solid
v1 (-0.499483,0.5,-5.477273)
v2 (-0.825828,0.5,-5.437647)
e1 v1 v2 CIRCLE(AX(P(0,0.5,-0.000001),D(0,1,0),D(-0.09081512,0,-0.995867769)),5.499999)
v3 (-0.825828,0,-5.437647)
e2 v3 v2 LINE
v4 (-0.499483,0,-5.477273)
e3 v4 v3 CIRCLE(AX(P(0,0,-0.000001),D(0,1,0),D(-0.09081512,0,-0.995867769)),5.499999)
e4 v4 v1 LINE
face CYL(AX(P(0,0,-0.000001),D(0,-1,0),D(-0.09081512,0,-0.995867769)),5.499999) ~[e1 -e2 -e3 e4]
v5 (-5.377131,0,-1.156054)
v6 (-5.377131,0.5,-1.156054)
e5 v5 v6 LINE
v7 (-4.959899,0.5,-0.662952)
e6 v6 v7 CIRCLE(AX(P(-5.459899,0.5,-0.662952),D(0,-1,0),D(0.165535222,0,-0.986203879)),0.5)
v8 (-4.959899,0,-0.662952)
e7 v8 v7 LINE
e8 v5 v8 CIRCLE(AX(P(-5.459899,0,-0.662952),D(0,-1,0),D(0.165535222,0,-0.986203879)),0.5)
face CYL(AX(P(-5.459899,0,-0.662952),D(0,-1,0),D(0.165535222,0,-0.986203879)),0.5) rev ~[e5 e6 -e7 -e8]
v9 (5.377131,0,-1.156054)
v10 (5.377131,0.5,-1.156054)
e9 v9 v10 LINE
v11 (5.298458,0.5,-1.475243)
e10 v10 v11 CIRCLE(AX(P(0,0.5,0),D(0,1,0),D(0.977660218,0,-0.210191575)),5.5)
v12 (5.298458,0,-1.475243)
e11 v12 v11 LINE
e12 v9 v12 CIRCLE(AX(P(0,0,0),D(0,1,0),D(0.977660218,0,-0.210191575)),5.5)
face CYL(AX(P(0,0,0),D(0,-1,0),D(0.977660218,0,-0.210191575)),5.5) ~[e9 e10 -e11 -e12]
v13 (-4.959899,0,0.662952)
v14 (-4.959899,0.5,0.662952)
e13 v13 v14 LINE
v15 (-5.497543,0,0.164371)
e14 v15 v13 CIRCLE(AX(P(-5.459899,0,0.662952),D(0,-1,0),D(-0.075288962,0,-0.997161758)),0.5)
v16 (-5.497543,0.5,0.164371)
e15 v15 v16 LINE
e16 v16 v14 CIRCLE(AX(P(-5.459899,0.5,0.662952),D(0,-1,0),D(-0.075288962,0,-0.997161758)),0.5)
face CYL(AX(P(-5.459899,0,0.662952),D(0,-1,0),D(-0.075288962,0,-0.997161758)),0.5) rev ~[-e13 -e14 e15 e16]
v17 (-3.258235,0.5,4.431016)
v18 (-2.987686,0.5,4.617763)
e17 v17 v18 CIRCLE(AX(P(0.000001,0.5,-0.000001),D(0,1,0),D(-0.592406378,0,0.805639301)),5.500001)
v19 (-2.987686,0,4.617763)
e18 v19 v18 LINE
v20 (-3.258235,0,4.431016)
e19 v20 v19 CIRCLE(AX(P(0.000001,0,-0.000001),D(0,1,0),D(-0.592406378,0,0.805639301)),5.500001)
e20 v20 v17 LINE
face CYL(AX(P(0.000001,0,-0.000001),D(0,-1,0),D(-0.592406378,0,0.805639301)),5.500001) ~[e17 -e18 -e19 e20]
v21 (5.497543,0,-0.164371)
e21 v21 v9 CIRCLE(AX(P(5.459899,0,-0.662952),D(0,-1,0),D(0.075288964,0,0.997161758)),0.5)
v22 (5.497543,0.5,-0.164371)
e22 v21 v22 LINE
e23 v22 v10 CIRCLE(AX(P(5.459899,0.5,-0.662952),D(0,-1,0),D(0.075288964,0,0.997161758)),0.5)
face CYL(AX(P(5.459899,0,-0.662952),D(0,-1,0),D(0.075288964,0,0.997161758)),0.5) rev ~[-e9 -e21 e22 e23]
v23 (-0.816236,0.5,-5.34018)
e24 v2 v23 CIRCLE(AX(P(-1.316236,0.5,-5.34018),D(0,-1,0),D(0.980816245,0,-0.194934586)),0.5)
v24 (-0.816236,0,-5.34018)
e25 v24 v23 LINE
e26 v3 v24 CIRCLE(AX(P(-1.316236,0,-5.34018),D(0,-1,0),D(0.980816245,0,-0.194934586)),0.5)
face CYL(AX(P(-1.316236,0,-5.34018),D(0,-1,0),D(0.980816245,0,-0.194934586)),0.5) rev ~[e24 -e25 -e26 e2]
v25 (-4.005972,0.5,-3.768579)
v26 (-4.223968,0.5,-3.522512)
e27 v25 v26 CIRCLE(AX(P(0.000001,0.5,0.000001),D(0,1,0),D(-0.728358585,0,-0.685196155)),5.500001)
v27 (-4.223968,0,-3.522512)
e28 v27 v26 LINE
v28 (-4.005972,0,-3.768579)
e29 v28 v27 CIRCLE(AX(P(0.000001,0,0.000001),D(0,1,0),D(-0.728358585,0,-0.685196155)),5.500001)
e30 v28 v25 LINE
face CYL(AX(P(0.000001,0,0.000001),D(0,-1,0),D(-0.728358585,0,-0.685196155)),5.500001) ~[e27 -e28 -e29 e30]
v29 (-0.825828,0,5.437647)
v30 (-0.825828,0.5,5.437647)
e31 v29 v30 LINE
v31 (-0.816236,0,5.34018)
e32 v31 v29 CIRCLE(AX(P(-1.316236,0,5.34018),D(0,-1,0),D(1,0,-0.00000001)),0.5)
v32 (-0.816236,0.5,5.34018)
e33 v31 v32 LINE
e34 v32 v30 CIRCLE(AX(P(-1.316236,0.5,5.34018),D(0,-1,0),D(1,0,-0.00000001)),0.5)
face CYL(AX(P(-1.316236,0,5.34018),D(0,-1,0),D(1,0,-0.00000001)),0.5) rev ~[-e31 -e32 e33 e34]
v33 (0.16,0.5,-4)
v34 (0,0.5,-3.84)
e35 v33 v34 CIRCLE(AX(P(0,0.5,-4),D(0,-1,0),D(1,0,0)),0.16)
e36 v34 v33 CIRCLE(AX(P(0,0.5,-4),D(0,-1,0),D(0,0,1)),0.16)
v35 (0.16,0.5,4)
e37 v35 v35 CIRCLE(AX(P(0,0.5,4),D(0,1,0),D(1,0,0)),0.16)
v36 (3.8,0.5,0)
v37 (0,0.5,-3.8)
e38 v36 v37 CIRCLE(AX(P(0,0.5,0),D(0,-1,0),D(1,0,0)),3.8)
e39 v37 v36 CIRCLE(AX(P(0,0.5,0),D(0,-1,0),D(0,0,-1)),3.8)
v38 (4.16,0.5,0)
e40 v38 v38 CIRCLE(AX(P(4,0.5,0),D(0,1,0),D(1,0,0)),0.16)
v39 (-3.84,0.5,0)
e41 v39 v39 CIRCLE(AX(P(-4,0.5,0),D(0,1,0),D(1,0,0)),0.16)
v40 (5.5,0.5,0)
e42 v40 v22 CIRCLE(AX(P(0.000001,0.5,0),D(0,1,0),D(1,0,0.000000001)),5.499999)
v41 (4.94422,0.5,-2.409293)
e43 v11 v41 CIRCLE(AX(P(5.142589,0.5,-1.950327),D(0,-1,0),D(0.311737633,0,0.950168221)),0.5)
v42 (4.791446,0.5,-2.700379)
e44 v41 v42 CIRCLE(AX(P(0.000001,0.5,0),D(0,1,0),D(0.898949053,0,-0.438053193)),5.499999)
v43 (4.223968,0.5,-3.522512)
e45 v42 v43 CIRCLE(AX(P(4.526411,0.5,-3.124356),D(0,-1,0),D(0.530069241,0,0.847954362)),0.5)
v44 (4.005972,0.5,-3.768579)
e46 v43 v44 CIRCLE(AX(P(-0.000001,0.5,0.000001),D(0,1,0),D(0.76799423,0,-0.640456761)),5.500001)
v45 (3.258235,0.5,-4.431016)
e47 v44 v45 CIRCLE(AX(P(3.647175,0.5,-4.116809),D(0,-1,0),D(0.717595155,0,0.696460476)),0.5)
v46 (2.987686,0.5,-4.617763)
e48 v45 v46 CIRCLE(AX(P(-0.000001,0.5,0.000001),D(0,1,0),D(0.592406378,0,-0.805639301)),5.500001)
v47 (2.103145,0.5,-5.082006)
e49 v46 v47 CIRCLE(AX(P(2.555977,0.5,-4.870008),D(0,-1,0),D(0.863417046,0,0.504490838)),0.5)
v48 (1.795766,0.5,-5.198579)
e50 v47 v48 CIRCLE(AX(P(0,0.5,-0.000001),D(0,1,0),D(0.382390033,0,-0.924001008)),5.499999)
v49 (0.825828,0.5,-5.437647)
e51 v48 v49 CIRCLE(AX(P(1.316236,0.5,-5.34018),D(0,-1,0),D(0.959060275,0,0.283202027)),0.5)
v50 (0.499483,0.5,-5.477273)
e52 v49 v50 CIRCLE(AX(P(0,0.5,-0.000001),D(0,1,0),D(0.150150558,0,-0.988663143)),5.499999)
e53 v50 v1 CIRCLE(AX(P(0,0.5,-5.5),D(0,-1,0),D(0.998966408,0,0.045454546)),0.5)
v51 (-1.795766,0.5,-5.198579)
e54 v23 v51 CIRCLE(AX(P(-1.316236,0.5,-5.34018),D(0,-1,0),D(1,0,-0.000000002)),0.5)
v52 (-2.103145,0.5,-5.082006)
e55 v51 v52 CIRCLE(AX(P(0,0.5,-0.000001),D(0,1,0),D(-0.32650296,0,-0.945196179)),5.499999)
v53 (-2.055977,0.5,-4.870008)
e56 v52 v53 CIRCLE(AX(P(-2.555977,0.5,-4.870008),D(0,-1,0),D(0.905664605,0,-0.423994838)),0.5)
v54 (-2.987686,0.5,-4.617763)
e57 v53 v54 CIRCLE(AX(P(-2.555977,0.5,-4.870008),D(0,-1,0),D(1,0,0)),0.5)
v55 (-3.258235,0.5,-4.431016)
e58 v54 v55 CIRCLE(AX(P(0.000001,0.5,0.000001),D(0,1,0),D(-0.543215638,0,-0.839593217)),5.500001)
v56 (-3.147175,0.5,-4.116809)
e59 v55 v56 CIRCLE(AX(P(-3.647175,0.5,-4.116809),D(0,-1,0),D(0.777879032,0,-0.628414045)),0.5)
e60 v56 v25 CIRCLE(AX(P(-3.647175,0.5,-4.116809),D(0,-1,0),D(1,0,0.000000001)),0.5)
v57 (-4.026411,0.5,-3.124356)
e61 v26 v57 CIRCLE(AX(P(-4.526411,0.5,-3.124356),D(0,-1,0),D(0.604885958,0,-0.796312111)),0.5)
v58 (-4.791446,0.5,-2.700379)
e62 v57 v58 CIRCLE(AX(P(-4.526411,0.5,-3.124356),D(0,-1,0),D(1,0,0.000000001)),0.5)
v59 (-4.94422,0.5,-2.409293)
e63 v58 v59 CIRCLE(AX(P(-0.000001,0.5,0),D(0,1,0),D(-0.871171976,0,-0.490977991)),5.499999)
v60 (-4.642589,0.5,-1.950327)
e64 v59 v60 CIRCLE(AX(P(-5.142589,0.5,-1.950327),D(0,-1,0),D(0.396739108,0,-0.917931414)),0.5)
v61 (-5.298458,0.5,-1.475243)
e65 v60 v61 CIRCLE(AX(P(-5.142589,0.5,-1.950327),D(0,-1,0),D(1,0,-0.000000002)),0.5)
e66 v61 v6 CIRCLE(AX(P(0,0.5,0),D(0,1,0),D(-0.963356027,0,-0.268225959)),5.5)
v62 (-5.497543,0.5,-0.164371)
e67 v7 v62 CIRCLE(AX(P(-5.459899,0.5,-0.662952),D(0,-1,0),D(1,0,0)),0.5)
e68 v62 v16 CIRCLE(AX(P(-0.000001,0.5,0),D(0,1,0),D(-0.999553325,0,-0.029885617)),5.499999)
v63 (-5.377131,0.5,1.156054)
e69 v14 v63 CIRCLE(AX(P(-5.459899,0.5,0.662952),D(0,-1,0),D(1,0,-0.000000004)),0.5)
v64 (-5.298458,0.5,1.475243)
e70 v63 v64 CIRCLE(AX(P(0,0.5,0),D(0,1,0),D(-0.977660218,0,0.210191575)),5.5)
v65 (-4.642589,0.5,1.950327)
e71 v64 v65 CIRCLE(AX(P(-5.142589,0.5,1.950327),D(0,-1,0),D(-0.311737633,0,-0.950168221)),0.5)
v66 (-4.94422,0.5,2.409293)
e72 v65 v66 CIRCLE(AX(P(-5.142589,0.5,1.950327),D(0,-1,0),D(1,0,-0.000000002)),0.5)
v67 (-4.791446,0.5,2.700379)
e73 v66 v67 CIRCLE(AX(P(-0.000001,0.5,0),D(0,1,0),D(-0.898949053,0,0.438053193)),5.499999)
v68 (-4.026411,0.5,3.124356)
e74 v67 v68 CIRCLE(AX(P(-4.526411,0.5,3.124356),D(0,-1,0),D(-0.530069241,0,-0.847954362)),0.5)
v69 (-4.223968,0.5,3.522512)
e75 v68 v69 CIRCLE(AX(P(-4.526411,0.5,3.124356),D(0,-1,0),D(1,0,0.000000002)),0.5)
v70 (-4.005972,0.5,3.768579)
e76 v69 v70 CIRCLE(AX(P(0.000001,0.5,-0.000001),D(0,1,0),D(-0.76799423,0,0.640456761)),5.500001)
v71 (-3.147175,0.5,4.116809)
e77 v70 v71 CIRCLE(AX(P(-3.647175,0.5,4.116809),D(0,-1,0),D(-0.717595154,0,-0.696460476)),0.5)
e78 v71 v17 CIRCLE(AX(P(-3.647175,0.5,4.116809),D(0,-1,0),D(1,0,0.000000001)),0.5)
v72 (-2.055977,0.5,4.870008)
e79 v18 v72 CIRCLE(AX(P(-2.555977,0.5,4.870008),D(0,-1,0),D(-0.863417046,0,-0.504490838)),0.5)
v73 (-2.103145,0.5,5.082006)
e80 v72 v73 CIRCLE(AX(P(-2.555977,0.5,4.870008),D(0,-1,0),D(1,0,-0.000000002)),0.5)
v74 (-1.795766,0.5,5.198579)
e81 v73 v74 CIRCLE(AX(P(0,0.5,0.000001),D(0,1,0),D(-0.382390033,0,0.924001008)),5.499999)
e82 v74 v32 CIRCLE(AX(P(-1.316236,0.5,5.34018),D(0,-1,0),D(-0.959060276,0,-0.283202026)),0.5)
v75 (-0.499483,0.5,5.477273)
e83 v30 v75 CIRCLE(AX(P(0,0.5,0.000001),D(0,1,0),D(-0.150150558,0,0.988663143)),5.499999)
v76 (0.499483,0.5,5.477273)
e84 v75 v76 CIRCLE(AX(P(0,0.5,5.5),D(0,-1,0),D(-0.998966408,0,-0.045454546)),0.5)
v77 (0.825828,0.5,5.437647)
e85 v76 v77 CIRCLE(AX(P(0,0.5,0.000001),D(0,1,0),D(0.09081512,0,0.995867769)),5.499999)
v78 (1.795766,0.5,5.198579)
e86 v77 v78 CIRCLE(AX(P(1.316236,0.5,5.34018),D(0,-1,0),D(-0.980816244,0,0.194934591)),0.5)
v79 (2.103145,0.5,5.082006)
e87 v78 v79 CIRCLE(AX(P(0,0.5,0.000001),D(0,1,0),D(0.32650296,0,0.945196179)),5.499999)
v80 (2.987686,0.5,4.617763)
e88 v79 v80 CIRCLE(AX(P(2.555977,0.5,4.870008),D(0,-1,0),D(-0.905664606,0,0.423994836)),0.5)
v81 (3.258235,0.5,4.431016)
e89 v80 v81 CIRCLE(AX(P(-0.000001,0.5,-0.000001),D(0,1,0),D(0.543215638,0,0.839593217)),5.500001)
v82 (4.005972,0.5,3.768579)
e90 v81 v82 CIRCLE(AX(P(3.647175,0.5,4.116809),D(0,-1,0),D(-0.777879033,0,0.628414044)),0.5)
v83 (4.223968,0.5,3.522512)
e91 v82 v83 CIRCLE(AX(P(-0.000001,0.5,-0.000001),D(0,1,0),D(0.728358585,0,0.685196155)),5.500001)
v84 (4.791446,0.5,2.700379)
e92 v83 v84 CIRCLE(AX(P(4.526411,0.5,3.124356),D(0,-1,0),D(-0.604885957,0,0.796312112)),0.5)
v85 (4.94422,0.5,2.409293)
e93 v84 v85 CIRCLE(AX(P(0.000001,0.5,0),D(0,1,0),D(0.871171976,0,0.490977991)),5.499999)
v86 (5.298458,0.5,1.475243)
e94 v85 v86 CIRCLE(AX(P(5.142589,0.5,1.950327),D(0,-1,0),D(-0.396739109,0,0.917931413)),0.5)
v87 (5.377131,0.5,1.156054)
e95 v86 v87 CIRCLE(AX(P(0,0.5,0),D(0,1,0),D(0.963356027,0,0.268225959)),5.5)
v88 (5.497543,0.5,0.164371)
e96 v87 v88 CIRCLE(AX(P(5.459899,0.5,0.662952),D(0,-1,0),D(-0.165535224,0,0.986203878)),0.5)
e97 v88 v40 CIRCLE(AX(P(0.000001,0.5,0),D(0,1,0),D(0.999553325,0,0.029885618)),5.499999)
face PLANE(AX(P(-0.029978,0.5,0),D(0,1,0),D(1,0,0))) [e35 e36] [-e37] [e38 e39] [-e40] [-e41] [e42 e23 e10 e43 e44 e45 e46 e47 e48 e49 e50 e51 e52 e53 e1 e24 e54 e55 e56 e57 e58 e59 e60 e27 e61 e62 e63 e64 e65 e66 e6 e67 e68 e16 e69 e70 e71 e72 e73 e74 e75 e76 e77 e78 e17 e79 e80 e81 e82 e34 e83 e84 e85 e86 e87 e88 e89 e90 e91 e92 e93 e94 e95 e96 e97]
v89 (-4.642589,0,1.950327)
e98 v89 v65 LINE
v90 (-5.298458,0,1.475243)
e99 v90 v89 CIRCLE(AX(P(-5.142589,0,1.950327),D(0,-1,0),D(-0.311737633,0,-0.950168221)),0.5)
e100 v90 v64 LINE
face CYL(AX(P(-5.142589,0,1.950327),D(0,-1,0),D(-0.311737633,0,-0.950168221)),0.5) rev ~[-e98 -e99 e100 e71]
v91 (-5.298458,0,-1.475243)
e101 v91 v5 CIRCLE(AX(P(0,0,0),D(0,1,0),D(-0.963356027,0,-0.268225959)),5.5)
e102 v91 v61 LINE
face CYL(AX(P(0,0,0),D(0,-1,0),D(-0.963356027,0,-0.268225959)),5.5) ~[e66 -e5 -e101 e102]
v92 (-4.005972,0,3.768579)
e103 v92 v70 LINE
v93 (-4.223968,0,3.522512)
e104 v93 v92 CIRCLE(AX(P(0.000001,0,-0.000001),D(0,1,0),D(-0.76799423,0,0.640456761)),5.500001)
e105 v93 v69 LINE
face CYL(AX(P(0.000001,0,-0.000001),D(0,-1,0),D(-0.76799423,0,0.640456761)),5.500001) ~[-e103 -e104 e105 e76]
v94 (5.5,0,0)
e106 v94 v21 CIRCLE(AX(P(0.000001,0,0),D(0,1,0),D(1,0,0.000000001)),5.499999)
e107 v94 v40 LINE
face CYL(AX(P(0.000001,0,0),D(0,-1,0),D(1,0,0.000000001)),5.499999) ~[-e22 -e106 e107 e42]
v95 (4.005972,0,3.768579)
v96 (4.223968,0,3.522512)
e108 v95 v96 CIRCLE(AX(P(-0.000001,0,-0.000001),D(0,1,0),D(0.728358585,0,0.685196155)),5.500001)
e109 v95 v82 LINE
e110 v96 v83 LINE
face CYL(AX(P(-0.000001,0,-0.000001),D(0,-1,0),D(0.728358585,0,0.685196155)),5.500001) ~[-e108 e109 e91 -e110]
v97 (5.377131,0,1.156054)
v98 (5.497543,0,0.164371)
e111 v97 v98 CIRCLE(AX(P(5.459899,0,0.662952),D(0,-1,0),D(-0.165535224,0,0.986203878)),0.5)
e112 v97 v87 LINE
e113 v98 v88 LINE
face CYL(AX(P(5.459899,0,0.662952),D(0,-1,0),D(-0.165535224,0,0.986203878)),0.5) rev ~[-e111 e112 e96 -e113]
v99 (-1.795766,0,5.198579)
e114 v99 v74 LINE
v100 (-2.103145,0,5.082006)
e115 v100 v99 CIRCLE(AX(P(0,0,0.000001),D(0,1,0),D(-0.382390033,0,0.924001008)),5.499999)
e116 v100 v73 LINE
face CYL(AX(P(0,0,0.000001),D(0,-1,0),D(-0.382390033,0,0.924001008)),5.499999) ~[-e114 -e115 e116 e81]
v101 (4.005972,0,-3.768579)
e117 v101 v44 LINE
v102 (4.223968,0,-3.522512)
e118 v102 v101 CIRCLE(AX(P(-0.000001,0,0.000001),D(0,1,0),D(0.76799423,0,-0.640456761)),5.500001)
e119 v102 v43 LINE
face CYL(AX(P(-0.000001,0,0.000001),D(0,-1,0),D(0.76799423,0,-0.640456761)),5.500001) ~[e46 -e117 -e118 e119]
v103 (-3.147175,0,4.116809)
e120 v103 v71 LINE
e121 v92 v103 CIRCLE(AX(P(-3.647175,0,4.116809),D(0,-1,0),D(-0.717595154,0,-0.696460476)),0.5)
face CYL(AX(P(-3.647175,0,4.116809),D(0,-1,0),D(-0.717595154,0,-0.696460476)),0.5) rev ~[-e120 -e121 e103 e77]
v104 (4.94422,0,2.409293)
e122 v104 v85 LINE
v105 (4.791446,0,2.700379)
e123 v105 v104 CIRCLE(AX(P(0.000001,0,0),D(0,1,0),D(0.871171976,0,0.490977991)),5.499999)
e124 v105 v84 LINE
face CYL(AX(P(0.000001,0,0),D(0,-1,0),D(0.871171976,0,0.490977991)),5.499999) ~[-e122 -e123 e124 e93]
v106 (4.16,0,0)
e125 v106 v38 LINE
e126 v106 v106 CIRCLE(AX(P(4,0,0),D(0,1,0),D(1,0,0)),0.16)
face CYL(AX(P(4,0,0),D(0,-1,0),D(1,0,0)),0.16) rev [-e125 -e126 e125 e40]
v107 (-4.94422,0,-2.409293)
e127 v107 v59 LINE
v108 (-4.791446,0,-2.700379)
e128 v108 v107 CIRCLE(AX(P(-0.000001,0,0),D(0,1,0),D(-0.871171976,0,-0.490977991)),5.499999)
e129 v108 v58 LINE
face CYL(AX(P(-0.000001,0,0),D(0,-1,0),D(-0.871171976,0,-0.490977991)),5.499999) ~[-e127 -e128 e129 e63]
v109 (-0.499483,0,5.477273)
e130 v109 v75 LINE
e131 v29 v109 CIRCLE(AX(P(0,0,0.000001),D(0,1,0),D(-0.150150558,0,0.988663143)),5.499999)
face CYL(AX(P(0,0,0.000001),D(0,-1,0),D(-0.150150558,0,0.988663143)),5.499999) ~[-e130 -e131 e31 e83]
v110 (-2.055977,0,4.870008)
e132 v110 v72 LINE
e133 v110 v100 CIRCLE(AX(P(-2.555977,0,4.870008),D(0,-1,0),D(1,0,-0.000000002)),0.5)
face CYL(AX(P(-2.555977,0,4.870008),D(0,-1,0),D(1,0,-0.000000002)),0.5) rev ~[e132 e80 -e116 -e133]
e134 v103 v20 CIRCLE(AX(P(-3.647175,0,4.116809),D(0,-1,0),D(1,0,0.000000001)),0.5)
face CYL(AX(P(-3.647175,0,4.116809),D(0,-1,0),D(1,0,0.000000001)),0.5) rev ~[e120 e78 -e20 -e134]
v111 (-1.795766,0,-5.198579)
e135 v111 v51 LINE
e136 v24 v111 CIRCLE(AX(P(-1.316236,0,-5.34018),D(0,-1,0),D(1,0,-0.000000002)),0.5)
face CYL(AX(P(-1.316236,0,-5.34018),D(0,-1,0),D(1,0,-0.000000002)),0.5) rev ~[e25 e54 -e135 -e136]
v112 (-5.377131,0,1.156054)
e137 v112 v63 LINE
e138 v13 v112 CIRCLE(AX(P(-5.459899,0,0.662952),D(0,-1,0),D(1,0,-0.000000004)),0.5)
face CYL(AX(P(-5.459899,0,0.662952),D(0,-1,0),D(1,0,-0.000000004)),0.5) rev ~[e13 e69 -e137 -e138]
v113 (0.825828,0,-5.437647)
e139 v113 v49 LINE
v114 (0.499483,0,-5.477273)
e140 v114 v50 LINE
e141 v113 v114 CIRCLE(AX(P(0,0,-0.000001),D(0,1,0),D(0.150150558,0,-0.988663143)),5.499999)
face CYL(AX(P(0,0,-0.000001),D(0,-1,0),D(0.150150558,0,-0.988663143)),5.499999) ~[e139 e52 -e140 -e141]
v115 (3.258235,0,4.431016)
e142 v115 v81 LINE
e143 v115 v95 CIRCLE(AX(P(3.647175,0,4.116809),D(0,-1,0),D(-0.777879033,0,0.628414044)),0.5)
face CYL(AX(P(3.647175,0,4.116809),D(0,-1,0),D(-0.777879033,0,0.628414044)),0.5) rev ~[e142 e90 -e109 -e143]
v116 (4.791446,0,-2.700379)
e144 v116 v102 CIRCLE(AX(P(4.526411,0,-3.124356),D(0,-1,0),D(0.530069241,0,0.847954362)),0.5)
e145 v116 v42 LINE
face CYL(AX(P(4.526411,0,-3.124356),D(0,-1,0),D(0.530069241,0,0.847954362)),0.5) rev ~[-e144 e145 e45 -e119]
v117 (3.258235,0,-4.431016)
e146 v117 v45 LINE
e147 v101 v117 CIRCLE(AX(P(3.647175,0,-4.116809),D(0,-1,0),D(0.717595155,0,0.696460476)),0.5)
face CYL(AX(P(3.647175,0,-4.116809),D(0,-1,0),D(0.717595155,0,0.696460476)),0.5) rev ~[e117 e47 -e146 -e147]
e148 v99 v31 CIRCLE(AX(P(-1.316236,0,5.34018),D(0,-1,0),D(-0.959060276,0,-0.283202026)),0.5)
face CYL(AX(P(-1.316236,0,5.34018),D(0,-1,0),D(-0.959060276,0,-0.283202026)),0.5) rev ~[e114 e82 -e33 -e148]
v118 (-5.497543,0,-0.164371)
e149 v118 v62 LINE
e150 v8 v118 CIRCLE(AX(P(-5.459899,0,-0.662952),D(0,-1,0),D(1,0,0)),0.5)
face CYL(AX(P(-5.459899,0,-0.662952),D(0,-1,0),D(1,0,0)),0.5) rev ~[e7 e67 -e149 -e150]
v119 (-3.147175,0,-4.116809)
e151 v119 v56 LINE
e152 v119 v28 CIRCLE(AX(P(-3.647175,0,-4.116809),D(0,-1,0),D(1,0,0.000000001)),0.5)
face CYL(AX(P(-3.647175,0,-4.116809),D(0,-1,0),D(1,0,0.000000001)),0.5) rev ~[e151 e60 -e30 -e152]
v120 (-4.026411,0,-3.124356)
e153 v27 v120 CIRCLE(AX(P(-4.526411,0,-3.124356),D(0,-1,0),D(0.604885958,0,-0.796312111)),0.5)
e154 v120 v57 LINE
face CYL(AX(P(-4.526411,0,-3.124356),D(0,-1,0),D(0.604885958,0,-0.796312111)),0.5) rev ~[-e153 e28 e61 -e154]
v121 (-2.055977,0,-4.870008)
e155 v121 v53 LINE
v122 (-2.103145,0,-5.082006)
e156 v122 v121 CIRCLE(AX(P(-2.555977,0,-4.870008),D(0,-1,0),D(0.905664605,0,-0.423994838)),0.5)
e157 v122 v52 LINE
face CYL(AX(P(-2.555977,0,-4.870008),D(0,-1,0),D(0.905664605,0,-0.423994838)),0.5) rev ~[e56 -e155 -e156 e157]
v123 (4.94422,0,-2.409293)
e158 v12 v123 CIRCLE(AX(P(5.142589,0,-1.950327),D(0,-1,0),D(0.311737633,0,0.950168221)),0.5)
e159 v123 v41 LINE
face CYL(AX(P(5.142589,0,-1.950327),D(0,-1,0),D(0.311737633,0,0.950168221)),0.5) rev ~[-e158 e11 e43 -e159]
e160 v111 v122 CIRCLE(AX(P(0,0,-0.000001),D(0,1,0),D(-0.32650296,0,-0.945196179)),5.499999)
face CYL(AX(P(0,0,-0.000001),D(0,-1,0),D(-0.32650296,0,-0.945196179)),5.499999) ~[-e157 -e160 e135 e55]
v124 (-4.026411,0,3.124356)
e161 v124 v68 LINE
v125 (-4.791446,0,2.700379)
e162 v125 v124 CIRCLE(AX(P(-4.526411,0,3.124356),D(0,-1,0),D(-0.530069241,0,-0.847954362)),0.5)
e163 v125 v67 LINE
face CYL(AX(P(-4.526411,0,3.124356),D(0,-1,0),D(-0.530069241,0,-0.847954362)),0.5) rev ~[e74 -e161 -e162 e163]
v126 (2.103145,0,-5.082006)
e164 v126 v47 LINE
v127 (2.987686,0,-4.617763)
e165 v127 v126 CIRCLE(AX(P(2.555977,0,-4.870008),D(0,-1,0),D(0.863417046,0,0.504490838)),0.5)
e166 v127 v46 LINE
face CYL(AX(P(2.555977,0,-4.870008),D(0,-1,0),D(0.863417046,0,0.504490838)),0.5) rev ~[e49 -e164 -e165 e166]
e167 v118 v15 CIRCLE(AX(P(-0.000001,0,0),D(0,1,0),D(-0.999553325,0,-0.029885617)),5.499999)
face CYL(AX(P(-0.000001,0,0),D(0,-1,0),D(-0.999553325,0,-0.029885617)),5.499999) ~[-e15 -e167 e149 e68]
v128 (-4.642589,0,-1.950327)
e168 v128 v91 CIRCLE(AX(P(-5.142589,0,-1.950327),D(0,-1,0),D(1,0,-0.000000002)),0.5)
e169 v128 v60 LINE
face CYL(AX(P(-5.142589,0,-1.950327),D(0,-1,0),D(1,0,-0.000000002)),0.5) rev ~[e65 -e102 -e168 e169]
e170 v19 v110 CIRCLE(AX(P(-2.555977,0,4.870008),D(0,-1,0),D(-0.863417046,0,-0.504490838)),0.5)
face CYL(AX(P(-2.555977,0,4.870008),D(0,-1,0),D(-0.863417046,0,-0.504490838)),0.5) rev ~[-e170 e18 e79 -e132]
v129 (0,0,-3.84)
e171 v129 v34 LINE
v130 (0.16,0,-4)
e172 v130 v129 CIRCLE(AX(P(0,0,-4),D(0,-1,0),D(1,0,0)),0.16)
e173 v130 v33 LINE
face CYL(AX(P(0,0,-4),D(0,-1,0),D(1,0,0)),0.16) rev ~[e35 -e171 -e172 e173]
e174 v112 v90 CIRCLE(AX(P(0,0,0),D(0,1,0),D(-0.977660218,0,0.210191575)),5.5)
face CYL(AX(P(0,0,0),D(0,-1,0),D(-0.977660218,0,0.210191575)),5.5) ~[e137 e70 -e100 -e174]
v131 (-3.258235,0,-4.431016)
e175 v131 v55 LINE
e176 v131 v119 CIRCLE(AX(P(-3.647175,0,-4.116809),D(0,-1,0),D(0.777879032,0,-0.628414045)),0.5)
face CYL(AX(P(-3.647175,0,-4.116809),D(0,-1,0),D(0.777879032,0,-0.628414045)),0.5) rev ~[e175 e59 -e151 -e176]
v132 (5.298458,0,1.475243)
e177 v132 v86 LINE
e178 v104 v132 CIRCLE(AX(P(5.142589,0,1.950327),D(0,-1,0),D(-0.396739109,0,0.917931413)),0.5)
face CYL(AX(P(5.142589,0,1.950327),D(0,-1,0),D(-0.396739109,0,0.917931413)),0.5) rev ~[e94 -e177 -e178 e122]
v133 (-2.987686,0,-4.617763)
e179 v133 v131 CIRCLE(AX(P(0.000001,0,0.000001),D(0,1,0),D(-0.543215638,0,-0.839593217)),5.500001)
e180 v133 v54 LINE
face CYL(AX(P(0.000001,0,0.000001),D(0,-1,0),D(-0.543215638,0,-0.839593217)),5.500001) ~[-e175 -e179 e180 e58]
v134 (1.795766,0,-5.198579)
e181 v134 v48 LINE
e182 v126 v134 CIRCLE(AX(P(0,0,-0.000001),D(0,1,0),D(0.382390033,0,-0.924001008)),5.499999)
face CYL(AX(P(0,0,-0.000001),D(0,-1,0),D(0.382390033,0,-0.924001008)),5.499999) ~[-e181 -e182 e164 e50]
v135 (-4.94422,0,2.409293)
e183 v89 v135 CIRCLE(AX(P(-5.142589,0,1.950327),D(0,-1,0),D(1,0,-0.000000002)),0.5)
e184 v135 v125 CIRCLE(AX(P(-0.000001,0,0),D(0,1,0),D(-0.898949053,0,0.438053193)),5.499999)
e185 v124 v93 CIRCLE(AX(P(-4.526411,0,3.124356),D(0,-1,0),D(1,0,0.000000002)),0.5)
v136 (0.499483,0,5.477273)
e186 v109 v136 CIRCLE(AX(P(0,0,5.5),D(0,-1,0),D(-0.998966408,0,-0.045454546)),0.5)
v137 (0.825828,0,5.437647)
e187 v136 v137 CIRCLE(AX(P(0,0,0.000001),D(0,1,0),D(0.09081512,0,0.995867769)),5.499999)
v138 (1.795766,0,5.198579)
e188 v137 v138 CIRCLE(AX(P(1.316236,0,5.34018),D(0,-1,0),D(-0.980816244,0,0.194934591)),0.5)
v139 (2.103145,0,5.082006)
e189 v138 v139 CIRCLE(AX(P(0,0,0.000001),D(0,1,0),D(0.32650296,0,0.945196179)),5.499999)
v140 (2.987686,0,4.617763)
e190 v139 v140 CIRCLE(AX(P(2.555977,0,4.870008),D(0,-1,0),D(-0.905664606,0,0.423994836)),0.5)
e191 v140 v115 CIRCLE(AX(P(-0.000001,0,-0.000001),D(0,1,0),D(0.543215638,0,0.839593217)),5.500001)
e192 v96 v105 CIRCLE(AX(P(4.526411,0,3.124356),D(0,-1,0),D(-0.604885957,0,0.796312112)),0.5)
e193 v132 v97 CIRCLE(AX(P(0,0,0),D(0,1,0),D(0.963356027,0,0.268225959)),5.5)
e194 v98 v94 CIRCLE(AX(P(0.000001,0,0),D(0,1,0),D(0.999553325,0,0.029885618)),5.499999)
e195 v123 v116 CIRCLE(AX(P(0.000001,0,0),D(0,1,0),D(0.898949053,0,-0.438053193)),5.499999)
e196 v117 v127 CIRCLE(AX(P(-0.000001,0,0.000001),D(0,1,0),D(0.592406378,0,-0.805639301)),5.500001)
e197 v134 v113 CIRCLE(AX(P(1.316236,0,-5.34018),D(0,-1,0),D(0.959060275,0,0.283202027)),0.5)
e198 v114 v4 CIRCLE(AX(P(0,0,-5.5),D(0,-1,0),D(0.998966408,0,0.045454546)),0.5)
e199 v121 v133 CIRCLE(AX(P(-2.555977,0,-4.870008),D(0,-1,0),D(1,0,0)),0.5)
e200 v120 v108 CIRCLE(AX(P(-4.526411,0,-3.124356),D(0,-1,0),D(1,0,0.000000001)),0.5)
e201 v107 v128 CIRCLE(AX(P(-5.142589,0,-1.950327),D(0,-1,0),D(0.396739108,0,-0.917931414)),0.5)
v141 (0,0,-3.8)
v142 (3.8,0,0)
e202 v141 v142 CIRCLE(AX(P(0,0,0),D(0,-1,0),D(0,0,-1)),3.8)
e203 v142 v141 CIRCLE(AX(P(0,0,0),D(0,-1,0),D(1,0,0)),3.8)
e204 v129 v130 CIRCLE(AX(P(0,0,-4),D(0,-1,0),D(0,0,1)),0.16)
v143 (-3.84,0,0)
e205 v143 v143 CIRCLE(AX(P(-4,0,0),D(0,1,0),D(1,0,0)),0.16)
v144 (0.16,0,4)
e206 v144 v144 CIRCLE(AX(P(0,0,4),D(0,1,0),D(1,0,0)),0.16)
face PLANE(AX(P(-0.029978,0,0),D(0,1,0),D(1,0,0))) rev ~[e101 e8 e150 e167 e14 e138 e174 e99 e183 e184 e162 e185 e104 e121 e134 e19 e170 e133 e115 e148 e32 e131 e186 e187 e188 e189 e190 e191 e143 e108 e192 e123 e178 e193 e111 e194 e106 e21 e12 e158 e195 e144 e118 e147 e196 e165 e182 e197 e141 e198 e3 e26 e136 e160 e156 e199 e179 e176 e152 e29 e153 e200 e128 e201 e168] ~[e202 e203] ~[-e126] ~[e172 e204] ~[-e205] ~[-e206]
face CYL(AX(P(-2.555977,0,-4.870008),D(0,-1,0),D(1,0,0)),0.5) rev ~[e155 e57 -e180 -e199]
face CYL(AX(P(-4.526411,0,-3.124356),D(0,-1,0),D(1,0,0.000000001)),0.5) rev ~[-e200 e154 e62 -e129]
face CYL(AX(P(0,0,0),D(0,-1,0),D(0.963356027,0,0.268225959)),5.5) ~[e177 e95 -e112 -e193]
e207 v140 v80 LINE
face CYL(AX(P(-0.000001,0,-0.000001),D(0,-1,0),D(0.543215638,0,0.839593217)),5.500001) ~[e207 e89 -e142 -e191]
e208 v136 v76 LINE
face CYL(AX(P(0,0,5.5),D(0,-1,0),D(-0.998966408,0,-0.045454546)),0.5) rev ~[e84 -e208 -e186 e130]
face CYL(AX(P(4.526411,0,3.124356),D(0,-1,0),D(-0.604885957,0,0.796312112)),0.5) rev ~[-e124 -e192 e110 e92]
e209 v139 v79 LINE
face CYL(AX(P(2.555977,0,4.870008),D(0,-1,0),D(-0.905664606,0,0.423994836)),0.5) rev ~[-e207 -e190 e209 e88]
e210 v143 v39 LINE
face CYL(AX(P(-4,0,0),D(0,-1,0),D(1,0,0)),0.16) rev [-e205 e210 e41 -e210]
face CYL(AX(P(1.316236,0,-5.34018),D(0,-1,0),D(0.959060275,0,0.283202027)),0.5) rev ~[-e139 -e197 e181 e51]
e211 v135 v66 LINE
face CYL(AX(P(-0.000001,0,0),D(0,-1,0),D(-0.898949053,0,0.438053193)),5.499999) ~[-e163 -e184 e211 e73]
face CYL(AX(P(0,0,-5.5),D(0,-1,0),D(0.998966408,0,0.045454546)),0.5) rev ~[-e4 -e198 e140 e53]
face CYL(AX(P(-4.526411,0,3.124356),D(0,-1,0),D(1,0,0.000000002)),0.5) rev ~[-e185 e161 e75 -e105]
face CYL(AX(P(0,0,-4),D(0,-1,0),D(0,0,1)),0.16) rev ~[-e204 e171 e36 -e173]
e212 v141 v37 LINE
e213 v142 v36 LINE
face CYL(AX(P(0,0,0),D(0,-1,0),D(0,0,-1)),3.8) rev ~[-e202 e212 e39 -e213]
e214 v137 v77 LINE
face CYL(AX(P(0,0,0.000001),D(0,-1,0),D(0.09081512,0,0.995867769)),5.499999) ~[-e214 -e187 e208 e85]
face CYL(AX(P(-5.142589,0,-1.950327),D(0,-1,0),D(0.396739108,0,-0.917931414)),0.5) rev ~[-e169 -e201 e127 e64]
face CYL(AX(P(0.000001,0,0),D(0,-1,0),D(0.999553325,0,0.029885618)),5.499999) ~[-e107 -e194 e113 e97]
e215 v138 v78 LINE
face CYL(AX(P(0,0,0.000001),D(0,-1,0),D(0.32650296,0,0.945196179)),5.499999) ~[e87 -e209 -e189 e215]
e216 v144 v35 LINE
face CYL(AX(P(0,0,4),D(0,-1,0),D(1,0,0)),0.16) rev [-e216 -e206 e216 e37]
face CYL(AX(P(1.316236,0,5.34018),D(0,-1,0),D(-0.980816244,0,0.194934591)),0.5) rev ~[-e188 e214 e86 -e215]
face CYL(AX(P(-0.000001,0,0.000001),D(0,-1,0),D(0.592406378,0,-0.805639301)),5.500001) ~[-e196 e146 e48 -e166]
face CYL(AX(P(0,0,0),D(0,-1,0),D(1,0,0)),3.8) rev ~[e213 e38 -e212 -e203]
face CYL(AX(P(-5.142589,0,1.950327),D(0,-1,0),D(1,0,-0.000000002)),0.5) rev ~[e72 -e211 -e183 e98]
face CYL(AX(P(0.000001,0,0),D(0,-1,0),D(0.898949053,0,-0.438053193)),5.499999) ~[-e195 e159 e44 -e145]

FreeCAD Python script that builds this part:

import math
import FreeCAD as App
import Part
import Sketcher

V = App.Vector

doc = App.newDocument("Part")
body = doc.addObject("PartDesign::Body", "Body")

# Sketch on XZ plane
sketch1 = body.newObject("Sketcher::SketchObject", "Sketch")
sketch1.AttachmentSupport = (doc.getObject("XZ_Plane"), [""])
sketch1.MapMode = "FlatFace"
sketch1.addGeometry([
    Part.ArcOfCircle(Part.Circle(V(0.000001, 0, 0), V(0, 0, 1), 5.499999), math.radians(0), math.radians(1.712575)),  # 0
    Part.ArcOfCircle(Part.Circle(V(0.000001, 0, 0), V(0, 0, 1), 5.499999), math.radians(-1.712575), math.radians(0)),  # 1
    Part.ArcOfCircle(Part.Circle(V(5.459899, -0.662952, 0), V(0, 0, 1), 0.5), math.radians(85.682174), math.radians(260.471672)),  # 2
    Part.ArcOfCircle(Part.Circle(V(0, 0, 0), V(0, 0, 1), 5.5), math.radians(-15.558728), math.radians(-12.133579)),  # 3
    Part.ArcOfCircle(Part.Circle(V(5.142589, -1.950327, 0), V(0, 0, 1), 0.5), math.radians(71.83602), math.radians(246.625518)),  # 4
    Part.ArcOfCircle(Part.Circle(V(0.000001, 0, 0), V(0, 0, 1), 5.499999), math.radians(-29.404882), math.radians(-25.979733)),  # 5
    Part.ArcOfCircle(Part.Circle(V(4.526411, -3.124356, 0), V(0, 0, 1), 0.5), math.radians(57.989867), math.radians(232.779364)),  # 6
    Part.ArcOfCircle(Part.Circle(V(-0.000001, 0.000001, 0), V(0, 0, 1), 5.500001), math.radians(-43.251036), math.radians(-39.825887)),  # 7
    Part.ArcOfCircle(Part.Circle(V(3.647175, -4.116809, 0), V(0, 0, 1), 0.5), math.radians(44.143713), math.radians(218.93321)),  # 8
    Part.ArcOfCircle(Part.Circle(V(-0.000001, 0.000001, 0), V(0, 0, 1), 5.500001), math.radians(-57.097189), math.radians(-53.672041)),  # 9
    Part.ArcOfCircle(Part.Circle(V(2.555977, -4.870008, 0), V(0, 0, 1), 0.5), math.radians(30.297559), math.radians(205.087056)),  # 10
    Part.ArcOfCircle(Part.Circle(V(0, -0.000001, 0), V(0, 0, 1), 5.499999), math.radians(-70.943344), math.radians(-67.518194)),  # 11
    Part.ArcOfCircle(Part.Circle(V(1.316236, -5.34018, 0), V(0, 0, 1), 0.5), math.radians(16.451405), math.radians(191.240903)),  # 12
    Part.ArcOfCircle(Part.Circle(V(0, -0.000001, 0), V(0, 0, 1), 5.499999), math.radians(-84.789498), math.radians(-81.364348)),  # 13
    Part.ArcOfCircle(Part.Circle(V(0, -5.5, 0), V(0, 0, 1), 0.5), math.radians(2.605251), math.radians(177.394749)),  # 14
    Part.ArcOfCircle(Part.Circle(V(0, -0.000001, 0), V(0, 0, 1), 5.499999), math.radians(-98.635652), math.radians(-95.210502)),  # 15
    Part.ArcOfCircle(Part.Circle(V(-1.316236, -5.34018, 0), V(0, 0, 1), 0.5), math.radians(-11.240902), math.radians(0.000001)),  # 16
    Part.ArcOfCircle(Part.Circle(V(-1.316236, -5.34018, 0), V(0, 0, 1), 0.5), math.radians(0), math.radians(163.548595)),  # 17
    Part.ArcOfCircle(Part.Circle(V(0, -0.000001, 0), V(0, 0, 1), 5.499999), math.radians(-112.481806), math.radians(-109.056656)),  # 18
    Part.ArcOfCircle(Part.Circle(V(-2.555977, -4.870008, 0), V(0, 0, 1), 0.5), math.radians(-25.087057), math.radians(0)),  # 19
    Part.ArcOfCircle(Part.Circle(V(-2.555977, -4.870008, 0), V(0, 0, 1), 0.5), math.radians(0), math.radians(149.702441)),  # 20
    Part.ArcOfCircle(Part.Circle(V(0.000001, 0.000001, 0), V(0, 0, 1), 5.500001), math.radians(-126.327959), math.radians(-122.902811)),  # 21
    Part.ArcOfCircle(Part.Circle(V(-3.647175, -4.116809, 0), V(0, 0, 1), 0.5), math.radians(-38.93321), math.radians(0)),  # 22
    Part.ArcOfCircle(Part.Circle(V(-3.647175, -4.116809, 0), V(0, 0, 1), 0.5), math.radians(0), math.radians(135.856287)),  # 23
    Part.ArcOfCircle(Part.Circle(V(0.000001, 0.000001, 0), V(0, 0, 1), 5.500001), math.radians(-140.174113), math.radians(-136.748964)),  # 24
    Part.ArcOfCircle(Part.Circle(V(-4.526411, -3.124356, 0), V(0, 0, 1), 0.5), math.radians(-52.779364), math.radians(0)),  # 25
    Part.ArcOfCircle(Part.Circle(V(-4.526411, -3.124356, 0), V(0, 0, 1), 0.5), math.radians(0), math.radians(122.010133)),  # 26
    Part.ArcOfCircle(Part.Circle(V(-0.000001, 0, 0), V(0, 0, 1), 5.499999), math.radians(-154.020267), math.radians(-150.595118)),  # 27
    Part.ArcOfCircle(Part.Circle(V(-5.142589, -1.950327, 0), V(0, 0, 1), 0.5), math.radians(-66.625518), math.radians(0)),  # 28
    Part.ArcOfCircle(Part.Circle(V(-5.142589, -1.950327, 0), V(0, 0, 1), 0.5), math.radians(0), math.radians(108.16398)),  # 29
    Part.ArcOfCircle(Part.Circle(V(0, 0, 0), V(0, 0, 1), 5.5), math.radians(-167.866421), math.radians(-164.441272)),  # 30
    Part.ArcOfCircle(Part.Circle(V(-5.459899, -0.662952, 0), V(0, 0, 1), 0.5), math.radians(-80.471672), math.radians(0)),  # 31
    Part.ArcOfCircle(Part.Circle(V(-5.459899, -0.662952, 0), V(0, 0, 1), 0.5), math.radians(0), math.radians(94.317826)),  # 32
    Part.ArcOfCircle(Part.Circle(V(-0.000001, 0, 0), V(0, 0, 1), 5.499999), math.radians(178.287425), math.radians(181.712575)),  # 33
    Part.ArcOfCircle(Part.Circle(V(-5.459899, 0.662952, 0), V(0, 0, 1), 0.5), math.radians(-94.317826), math.radians(0)),  # 34
    Part.ArcOfCircle(Part.Circle(V(-5.459899, 0.662952, 0), V(0, 0, 1), 0.5), math.radians(0), math.radians(80.471672)),  # 35
    Part.ArcOfCircle(Part.Circle(V(0, 0, 0), V(0, 0, 1), 5.5), math.radians(164.441272), math.radians(167.866421)),  # 36
    Part.ArcOfCircle(Part.Circle(V(-5.142589, 1.950327, 0), V(0, 0, 1), 0.5), math.radians(-108.16398), math.radians(0)),  # 37
    Part.ArcOfCircle(Part.Circle(V(-5.142589, 1.950327, 0), V(0, 0, 1), 0.5), math.radians(0), math.radians(66.625518)),  # 38
    Part.ArcOfCircle(Part.Circle(V(-0.000001, 0, 0), V(0, 0, 1), 5.499999), math.radians(150.595118), math.radians(154.020267)),  # 39
    Part.ArcOfCircle(Part.Circle(V(-4.526411, 3.124356, 0), V(0, 0, 1), 0.5), math.radians(-122.010133), math.radians(0)),  # 40
    Part.ArcOfCircle(Part.Circle(V(-4.526411, 3.124356, 0), V(0, 0, 1), 0.5), math.radians(0), math.radians(52.779364)),  # 41
    Part.ArcOfCircle(Part.Circle(V(0.000001, -0.000001, 0), V(0, 0, 1), 5.500001), math.radians(136.748964), math.radians(140.174113)),  # 42
    Part.ArcOfCircle(Part.Circle(V(-3.647175, 4.116809, 0), V(0, 0, 1), 0.5), math.radians(-135.856287), math.radians(0)),  # 43
    Part.ArcOfCircle(Part.Circle(V(-3.647175, 4.116809, 0), V(0, 0, 1), 0.5), math.radians(0), math.radians(38.93321)),  # 44
    Part.ArcOfCircle(Part.Circle(V(0.000001, -0.000001, 0), V(0, 0, 1), 5.500001), math.radians(122.902811), math.radians(126.327959)),  # 45
    Part.ArcOfCircle(Part.Circle(V(-2.555977, 4.870008, 0), V(0, 0, 1), 0.5), math.radians(-149.702441), math.radians(0)),  # 46
    Part.ArcOfCircle(Part.Circle(V(-2.555977, 4.870008, 0), V(0, 0, 1), 0.5), math.radians(0), math.radians(25.087057)),  # 47
    Part.ArcOfCircle(Part.Circle(V(0, 0.000001, 0), V(0, 0, 1), 5.499999), math.radians(109.056656), math.radians(112.481806)),  # 48
    Part.ArcOfCircle(Part.Circle(V(-1.316236, 5.34018, 0), V(0, 0, 1), 0.5), math.radians(-163.548595), math.radians(0)),  # 49
    Part.ArcOfCircle(Part.Circle(V(-1.316236, 5.34018, 0), V(0, 0, 1), 0.5), math.radians(-0.000001), math.radians(11.240902)),  # 50
    Part.ArcOfCircle(Part.Circle(V(0, 0.000001, 0), V(0, 0, 1), 5.499999), math.radians(95.210502), math.radians(98.635652)),  # 51
    Part.ArcOfCircle(Part.Circle(V(0, 5.5, 0), V(0, 0, 1), 0.5), math.radians(-177.394749), math.radians(-2.605251)),  # 52
    Part.ArcOfCircle(Part.Circle(V(0, 0.000001, 0), V(0, 0, 1), 5.499999), math.radians(81.364348), math.radians(84.789498)),  # 53
    Part.ArcOfCircle(Part.Circle(V(1.316236, 5.34018, 0), V(0, 0, 1), 0.5), math.radians(168.759097), math.radians(343.548595)),  # 54
    Part.ArcOfCircle(Part.Circle(V(0, 0.000001, 0), V(0, 0, 1), 5.499999), math.radians(67.518194), math.radians(70.943344)),  # 55
    Part.ArcOfCircle(Part.Circle(V(2.555977, 4.870008, 0), V(0, 0, 1), 0.5), math.radians(154.912944), math.radians(329.702441)),  # 56
    Part.ArcOfCircle(Part.Circle(V(-0.000001, -0.000001, 0), V(0, 0, 1), 5.500001), math.radians(53.672041), math.radians(57.097189)),  # 57
    Part.ArcOfCircle(Part.Circle(V(3.647175, 4.116809, 0), V(0, 0, 1), 0.5), math.radians(141.06679), math.radians(315.856287)),  # 58
    Part.ArcOfCircle(Part.Circle(V(-0.000001, -0.000001, 0), V(0, 0, 1), 5.500001), math.radians(39.825887), math.radians(43.251036)),  # 59
    Part.ArcOfCircle(Part.Circle(V(4.526411, 3.124356, 0), V(0, 0, 1), 0.5), math.radians(127.220636), math.radians(302.010133)),  # 60
    Part.ArcOfCircle(Part.Circle(V(0.000001, 0, 0), V(0, 0, 1), 5.499999), math.radians(25.979733), math.radians(29.404882)),  # 61
    Part.ArcOfCircle(Part.Circle(V(5.142589, 1.950327, 0), V(0, 0, 1), 0.5), math.radians(113.374482), math.radians(288.16398)),  # 62
    Part.ArcOfCircle(Part.Circle(V(0, 0, 0), V(0, 0, 1), 5.5), math.radians(12.133579), math.radians(15.558728)),  # 63
    Part.ArcOfCircle(Part.Circle(V(5.459899, 0.662952, 0), V(0, 0, 1), 0.5), math.radians(99.528328), math.radians(274.317826)),  # 64
    Part.Circle(V(-4, 0, 0), V(0, 0, 1), 0.16),  # 65
    Part.ArcOfCircle(Part.Circle(V(0, 0, 0), V(0, 0, 1), 3.8), math.radians(-90), math.radians(0)),  # 66
    Part.ArcOfCircle(Part.Circle(V(0, 0, 0), V(0, 0, 1), 3.8), math.radians(0), math.radians(270)),  # 67
    Part.Circle(V(0, 4, 0), V(0, 0, 1), 0.16),  # 68
    Part.Circle(V(4, 0, 0), V(0, 0, 1), 0.16),  # 69
    Part.ArcOfCircle(Part.Circle(V(0, -4, 0), V(0, 0, 1), 0.16), math.radians(90), math.radians(360)),  # 70
    Part.ArcOfCircle(Part.Circle(V(0, -4, 0), V(0, 0, 1), 0.16), math.radians(0), math.radians(90)),  # 71
], False)
sketch1.addConstraint([
    Sketcher.Constraint("Tangent", 0, 1, 1, 2),
    Sketcher.Constraint("Coincident", 1, 1, 2, 1),
    Sketcher.Constraint("Coincident", 2, 2, 3, 2),
    Sketcher.Constraint("Coincident", 3, 1, 4, 1),
    Sketcher.Constraint("Coincident", 4, 2, 5, 2),
    Sketcher.Constraint("Coincident", 5, 1, 6, 1),
    Sketcher.Constraint("Coincident", 6, 2, 7, 2),
    Sketcher.Constraint("Coincident", 7, 1, 8, 1),
    Sketcher.Constraint("Coincident", 8, 2, 9, 2),
    Sketcher.Constraint("Coincident", 9, 1, 10, 1),
    Sketcher.Constraint("Coincident", 10, 2, 11, 2),
    Sketcher.Constraint("Coincident", 11, 1, 12, 1),
    Sketcher.Constraint("Coincident", 12, 2, 13, 2),
    Sketcher.Constraint("Coincident", 13, 1, 14, 1),
    Sketcher.Constraint("Coincident", 14, 2, 15, 2),
    Sketcher.Constraint("Coincident", 15, 1, 16, 1),
    Sketcher.Constraint("Tangent", 16, 2, 17, 1),
    Sketcher.Constraint("Coincident", 17, 2, 18, 2),
    Sketcher.Constraint("Coincident", 18, 1, 19, 1),
    Sketcher.Constraint("Tangent", 19, 2, 20, 1),
    Sketcher.Constraint("Coincident", 20, 2, 21, 2),
    Sketcher.Constraint("Coincident", 21, 1, 22, 1),
    Sketcher.Constraint("Tangent", 22, 2, 23, 1),
    Sketcher.Constraint("Coincident", 23, 2, 24, 2),
    Sketcher.Constraint("Coincident", 24, 1, 25, 1),
    Sketcher.Constraint("Tangent", 25, 2, 26, 1),
    Sketcher.Constraint("Coincident", 26, 2, 27, 2),
    Sketcher.Constraint("Coincident", 27, 1, 28, 1),
    Sketcher.Constraint("Tangent", 28, 2, 29, 1),
    Sketcher.Constraint("Coincident", 29, 2, 30, 2),
    Sketcher.Constraint("Coincident", 30, 1, 31, 1),
    Sketcher.Constraint("Tangent", 31, 2, 32, 1),
    Sketcher.Constraint("Coincident", 32, 2, 33, 2),
    Sketcher.Constraint("Coincident", 33, 1, 34, 1),
    Sketcher.Constraint("Tangent", 34, 2, 35, 1),
    Sketcher.Constraint("Coincident", 35, 2, 36, 2),
    Sketcher.Constraint("Coincident", 36, 1, 37, 1),
    Sketcher.Constraint("Tangent", 37, 2, 38, 1),
    Sketcher.Constraint("Coincident", 38, 2, 39, 2),
    Sketcher.Constraint("Coincident", 39, 1, 40, 1),
    Sketcher.Constraint("Tangent", 40, 2, 41, 1),
    Sketcher.Constraint("Coincident", 41, 2, 42, 2),
    Sketcher.Constraint("Coincident", 42, 1, 43, 1),
    Sketcher.Constraint("Tangent", 43, 2, 44, 1),
    Sketcher.Constraint("Coincident", 44, 2, 45, 2),
    Sketcher.Constraint("Coincident", 45, 1, 46, 1),
    Sketcher.Constraint("Tangent", 46, 2, 47, 1),
    Sketcher.Constraint("Coincident", 47, 2, 48, 2),
    Sketcher.Constraint("Coincident", 48, 1, 49, 1),
    Sketcher.Constraint("Tangent", 49, 2, 50, 1),
    Sketcher.Constraint("Coincident", 50, 2, 51, 2),
    Sketcher.Constraint("Coincident", 51, 1, 52, 1),
    Sketcher.Constraint("Coincident", 52, 2, 53, 2),
    Sketcher.Constraint("Coincident", 53, 1, 54, 1),
    Sketcher.Constraint("Coincident", 54, 2, 55, 2),
    Sketcher.Constraint("Coincident", 55, 1, 56, 1),
    Sketcher.Constraint("Coincident", 56, 2, 57, 2),
    Sketcher.Constraint("Coincident", 57, 1, 58, 1),
    Sketcher.Constraint("Coincident", 58, 2, 59, 2),
    Sketcher.Constraint("Coincident", 59, 1, 60, 1),
    Sketcher.Constraint("Coincident", 60, 2, 61, 2),
    Sketcher.Constraint("Coincident", 61, 1, 62, 1),
    Sketcher.Constraint("Coincident", 62, 2, 63, 2),
    Sketcher.Constraint("Coincident", 63, 1, 64, 1),
    Sketcher.Constraint("Coincident", 64, 2, 0, 2),
    Sketcher.Constraint("Tangent", 66, 1, 67, 2),
    Sketcher.Constraint("Coincident", 67, 1, 66, 2),
    Sketcher.Constraint("Tangent", 70, 1, 71, 2),
    Sketcher.Constraint("Coincident", 71, 1, 70, 2),
    Sketcher.Constraint("Coincident", 0, 3, -1, 1),
    Sketcher.Constraint("Coincident", 3, 3, -1, 1),
    Sketcher.Constraint("Coincident", 5, 3, -1, 1),
    Sketcher.Constraint("Coincident", 7, 3, -1, 1),
    Sketcher.Constraint("Coincident", 9, 3, -1, 1),
    Sketcher.Constraint("Coincident", 11, 3, -1, 1),
    Sketcher.Constraint("Coincident", 13, 3, -1, 1),
    Sketcher.Constraint("Coincident", 15, 3, -1, 1),
    Sketcher.Constraint("Coincident", 18, 3, -1, 1),
    Sketcher.Constraint("Coincident", 21, 3, -1, 1),
    Sketcher.Constraint("Coincident", 24, 3, -1, 1),
    Sketcher.Constraint("Coincident", 27, 3, -1, 1),
    Sketcher.Constraint("Coincident", 30, 3, -1, 1),
    Sketcher.Constraint("Coincident", 33, 3, -1, 1),
    Sketcher.Constraint("Coincident", 36, 3, -1, 1),
    Sketcher.Constraint("Coincident", 39, 3, -1, 1),
    Sketcher.Constraint("Coincident", 42, 3, -1, 1),
    Sketcher.Constraint("Coincident", 45, 3, -1, 1),
    Sketcher.Constraint("Coincident", 48, 3, -1, 1),
    Sketcher.Constraint("Coincident", 51, 3, -1, 1),
    Sketcher.Constraint("Coincident", 53, 3, -1, 1),
    Sketcher.Constraint("Coincident", 55, 3, -1, 1),
    Sketcher.Constraint("Coincident", 57, 3, -1, 1),
    Sketcher.Constraint("Coincident", 59, 3, -1, 1),
    Sketcher.Constraint("Coincident", 61, 3, -1, 1),
    Sketcher.Constraint("Coincident", 63, 3, -1, 1),
    Sketcher.Constraint("Coincident", 66, 3, -1, 1),
    Sketcher.Constraint("Equal", 0, 1),
    Sketcher.Constraint("Equal", 1, 3),
    Sketcher.Constraint("Equal", 2, 4),
    Sketcher.Constraint("Equal", 3, 5),
    Sketcher.Constraint("Equal", 4, 6),
    Sketcher.Constraint("Equal", 5, 7),
    Sketcher.Constraint("Equal", 6, 8),
    Sketcher.Constraint("Equal", 7, 9),
    Sketcher.Constraint("Equal", 8, 10),
    Sketcher.Constraint("Equal", 7, 11),
    Sketcher.Constraint("Equal", 10, 12),
    Sketcher.Constraint("Equal", 11, 13),
    Sketcher.Constraint("Equal", 12, 14),
    Sketcher.Constraint("Equal", 13, 15),
    Sketcher.Constraint("Equal", 14, 16),
    Sketcher.Constraint("Equal", 16, 17),
    Sketcher.Constraint("Equal", 15, 18),
    Sketcher.Constraint("Equal", 17, 19),
    Sketcher.Constraint("Equal", 19, 20),
    Sketcher.Constraint("Equal", 9, 21),
    Sketcher.Constraint("Equal", 20, 22),
    Sketcher.Constraint("Equal", 22, 23),
    Sketcher.Constraint("Equal", 21, 24),
    Sketcher.Constraint("Equal", 23, 25),
    Sketcher.Constraint("Equal", 25, 26),
    Sketcher.Constraint("Equal", 24, 27),
    Sketcher.Constraint("Equal", 26, 28),
    Sketcher.Constraint("Equal", 28, 29),
    Sketcher.Constraint("Equal", 27, 30),
    Sketcher.Constraint("Equal", 29, 31),
    Sketcher.Constraint("Equal", 31, 32),
    Sketcher.Constraint("Equal", 30, 33),
    Sketcher.Constraint("Equal", 32, 34),
    Sketcher.Constraint("Equal", 34, 35),
    Sketcher.Constraint("Equal", 33, 36),
    Sketcher.Constraint("Equal", 35, 37),
    Sketcher.Constraint("Equal", 37, 38),
    Sketcher.Constraint("Equal", 36, 39),
    Sketcher.Constraint("Equal", 38, 40),
    Sketcher.Constraint("Equal", 40, 41),
    Sketcher.Constraint("Equal", 39, 42),
    Sketcher.Constraint("Equal", 41, 43),
    Sketcher.Constraint("Equal", 43, 44),
    Sketcher.Constraint("Equal", 42, 45),
    Sketcher.Constraint("Equal", 44, 46),
    Sketcher.Constraint("Equal", 46, 47),
    Sketcher.Constraint("Equal", 42, 48),
    Sketcher.Constraint("Equal", 47, 49),
    Sketcher.Constraint("Equal", 49, 50),
    Sketcher.Constraint("Equal", 48, 51),
    Sketcher.Constraint("Equal", 50, 52),
    Sketcher.Constraint("Equal", 51, 53),
    Sketcher.Constraint("Equal", 52, 54),
    Sketcher.Constraint("Equal", 53, 55),
    Sketcher.Constraint("Equal", 54, 56),
    Sketcher.Constraint("Equal", 45, 57),
    Sketcher.Constraint("Equal", 56, 58),
    Sketcher.Constraint("Equal", 57, 59),
    Sketcher.Constraint("Equal", 58, 60),
    Sketcher.Constraint("Equal", 59, 61),
    Sketcher.Constraint("Equal", 60, 62),
    Sketcher.Constraint("Equal", 61, 63),
    Sketcher.Constraint("Equal", 62, 64),
    Sketcher.Constraint("Equal", 65, 68),
    Sketcher.Constraint("Equal", 68, 69),
    Sketcher.Constraint("Equal", 69, 70),
    Sketcher.Constraint("Symmetric", 2, 3, 34, 3, -1, 1),
    Sketcher.Constraint("Symmetric", 4, 3, 37, 3, -1, 1),
    Sketcher.Constraint("Symmetric", 6, 3, 40, 3, -1, 1),
    Sketcher.Constraint("Symmetric", 8, 3, 43, 3, -1, 1),
    Sketcher.Constraint("Symmetric", 10, 3, 46, 3, -1, 1),
    Sketcher.Constraint("Symmetric", 12, 3, 49, 3, -1, 1),
    Sketcher.Constraint("Symmetric", 14, 3, 52, 3, -1, 1),
    Sketcher.Constraint("Symmetric", 16, 3, 54, 3, -1, 1),
    Sketcher.Constraint("Symmetric", 19, 3, 56, 3, -1, 1),
    Sketcher.Constraint("Symmetric", 22, 3, 58, 3, -1, 1),
    Sketcher.Constraint("Symmetric", 25, 3, 60, 3, -1, 1),
    Sketcher.Constraint("Symmetric", 28, 3, 62, 3, -1, 1),
    Sketcher.Constraint("Symmetric", 31, 3, 64, 3, -1, 1),
    Sketcher.Constraint("Symmetric", 65, 3, 69, 3, -1, 1),
    Sketcher.Constraint("Symmetric", 68, 3, 70, 3, -1, 1),
    Sketcher.Constraint("Symmetric", 12, 3, 16, 3, -2),
    Sketcher.Constraint("Symmetric", 10, 3, 19, 3, -2),
    Sketcher.Constraint("Symmetric", 8, 3, 22, 3, -2),
    Sketcher.Constraint("Symmetric", 6, 3, 25, 3, -2),
    Sketcher.Constraint("Symmetric", 4, 3, 28, 3, -2),
    Sketcher.Constraint("Symmetric", 2, 3, 31, 3, -2),
    Sketcher.Constraint("PointOnObject", 14, 3, -2),
    Sketcher.Constraint("PointOnObject", 65, 3, -1),
    Sketcher.Constraint("PointOnObject", 68, 3, -2),
    Sketcher.Constraint("PointOnObject", 0, 1, -1),
    Sketcher.Constraint("PointOnObject", 66, 1, -2),
    Sketcher.Constraint("PointOnObject", 67, 1, -1),
    Sketcher.Constraint("PointOnObject", 70, 1, -2),
    Sketcher.Constraint("Horizontal", 17, 3, 16, 2),
    Sketcher.Constraint("Horizontal", 20, 3, 19, 2),
    Sketcher.Constraint("Horizontal", 23, 3, 22, 2),
    Sketcher.Constraint("Horizontal", 26, 3, 25, 2),
    Sketcher.Constraint("Horizontal", 29, 3, 28, 2),
    Sketcher.Constraint("Horizontal", 32, 3, 31, 2),
    Sketcher.Constraint("Horizontal", 64, 3, 34, 2),
    Sketcher.Constraint("Horizontal", 62, 3, 37, 2),
    Sketcher.Constraint("Horizontal", 60, 3, 40, 2),
    Sketcher.Constraint("Horizontal", 58, 3, 43, 2),
    Sketcher.Constraint("Horizontal", 56, 3, 46, 2),
    Sketcher.Constraint("Horizontal", 54, 3, 49, 2),
    Sketcher.Constraint("Horizontal", 70, 3, 71, 1),
    Sketcher.Constraint("Radius", 0, 5.499999),
    Sketcher.Constraint("Radius", 2, 0.5),
    Sketcher.Constraint("Radius", 66, 3.8),
    Sketcher.Constraint("Diameter", 65, 0.32),
    Sketcher.Constraint("DistanceX", 65, 3, -1, 1, 4.0),
    Sketcher.Constraint("DistanceY", -1, 1, 68, 3, 4.0),
    Sketcher.Constraint("DistanceY", 14, 3, -1, 1, 5.5),
    Sketcher.Constraint("DistanceX", -1, 1, 2, 3, 5.459899),
    Sketcher.Constraint("DistanceY", 2, 3, -1, 1, 0.662952),
    Sketcher.Constraint("DistanceX", -1, 1, 4, 3, 5.142589),
    Sketcher.Constraint("DistanceX", -1, 1, 6, 3, 4.526411),
    Sketcher.Constraint("DistanceY", 8, 3, -1, 1, 4.116809),
    Sketcher.Constraint("DistanceY", 10, 3, -1, 1, 4.870008),
    Sketcher.Constraint("DistanceY", 12, 3, -1, 1, 5.34018),
    Sketcher.Constraint("DistanceX", -1, 1, 3, 1, 5.298458),
    Sketcher.Constraint("DistanceY", 5, 1, -1, 1, 2.700379),
    Sketcher.Constraint("DistanceY", 7, 1, -1, 1, 3.768579),
    Sketcher.Constraint("DistanceY", 11, 1, -1, 1, 5.198579),
    Sketcher.Constraint("DistanceX", -1, 1, 10, 3, 2.555977),
])
pad1 = body.newObject("PartDesign::Pad", "Pad")
pad1.Profile = sketch1
pad1.Length = 0.5
pad1.Reversed = True

doc.recompute()
